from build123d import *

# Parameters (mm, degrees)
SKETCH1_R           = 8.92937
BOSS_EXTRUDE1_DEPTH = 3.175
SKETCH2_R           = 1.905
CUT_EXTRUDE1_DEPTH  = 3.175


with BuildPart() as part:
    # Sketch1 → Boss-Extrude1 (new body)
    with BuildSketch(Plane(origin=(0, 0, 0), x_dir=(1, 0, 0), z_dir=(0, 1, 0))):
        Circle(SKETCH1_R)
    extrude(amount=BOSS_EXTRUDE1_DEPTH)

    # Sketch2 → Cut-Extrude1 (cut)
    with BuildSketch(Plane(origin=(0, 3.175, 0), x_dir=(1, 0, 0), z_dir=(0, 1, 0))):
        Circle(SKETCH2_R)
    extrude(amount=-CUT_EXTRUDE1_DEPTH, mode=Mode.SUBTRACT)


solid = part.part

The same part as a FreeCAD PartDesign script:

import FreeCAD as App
import Part
import Sketcher
Q = App.Units.Quantity

doc = App.newDocument("Part")
body = doc.addObject("PartDesign::Body", "Body")

sketch1 = body.newObject("Sketcher::SketchObject", "Sketch")
sketch1.AttachmentSupport = (doc.getObject("XZ_Plane"), [""])
sketch1.MapMode = "FlatFace"
sketch1.addGeometry(Part.Circle(App.Vector(0, 0, 0), App.Vector(0, 0, 1), 9), False)
sketch1.addConstraint([
    Sketcher.Constraint("Coincident", 0, 3, -1, 1),
    Sketcher.Constraint("Diameter", 0, Q("0.7031 in")),
])
pad1 = body.newObject("PartDesign::Pad", "Pad")
pad1.Profile = sketch1
pad1.Length = Q("0.125 in")
pad1.Reversed = True

sketch2 = body.newObject("Sketcher::SketchObject", "Sketch001")
sketch2.AttachmentSupport = (doc.getObject("XZ_Plane"), [""])
sketch2.MapMode = "FlatFace"
sketch2.AttachmentOffset = App.Placement(App.Vector(0, 0, -0.125 * 25.4), App.Rotation())
sketch2.addGeometry(Part.Circle(App.Vector(0, 0, 0), App.Vector(0, 0, 1), 1.9), False)
sketch2.addConstraint([
    Sketcher.Constraint("Coincident", 0, 3, -1, 1),
    Sketcher.Constraint("Diameter", 0, Q("0.15 in")),
])
pocket1 = body.newObject("PartDesign::Pocket", "Pocket")
pocket1.Profile = sketch2
pocket1.Length = Q("0.125 in")
pocket1.Reversed = True

doc.recompute()
